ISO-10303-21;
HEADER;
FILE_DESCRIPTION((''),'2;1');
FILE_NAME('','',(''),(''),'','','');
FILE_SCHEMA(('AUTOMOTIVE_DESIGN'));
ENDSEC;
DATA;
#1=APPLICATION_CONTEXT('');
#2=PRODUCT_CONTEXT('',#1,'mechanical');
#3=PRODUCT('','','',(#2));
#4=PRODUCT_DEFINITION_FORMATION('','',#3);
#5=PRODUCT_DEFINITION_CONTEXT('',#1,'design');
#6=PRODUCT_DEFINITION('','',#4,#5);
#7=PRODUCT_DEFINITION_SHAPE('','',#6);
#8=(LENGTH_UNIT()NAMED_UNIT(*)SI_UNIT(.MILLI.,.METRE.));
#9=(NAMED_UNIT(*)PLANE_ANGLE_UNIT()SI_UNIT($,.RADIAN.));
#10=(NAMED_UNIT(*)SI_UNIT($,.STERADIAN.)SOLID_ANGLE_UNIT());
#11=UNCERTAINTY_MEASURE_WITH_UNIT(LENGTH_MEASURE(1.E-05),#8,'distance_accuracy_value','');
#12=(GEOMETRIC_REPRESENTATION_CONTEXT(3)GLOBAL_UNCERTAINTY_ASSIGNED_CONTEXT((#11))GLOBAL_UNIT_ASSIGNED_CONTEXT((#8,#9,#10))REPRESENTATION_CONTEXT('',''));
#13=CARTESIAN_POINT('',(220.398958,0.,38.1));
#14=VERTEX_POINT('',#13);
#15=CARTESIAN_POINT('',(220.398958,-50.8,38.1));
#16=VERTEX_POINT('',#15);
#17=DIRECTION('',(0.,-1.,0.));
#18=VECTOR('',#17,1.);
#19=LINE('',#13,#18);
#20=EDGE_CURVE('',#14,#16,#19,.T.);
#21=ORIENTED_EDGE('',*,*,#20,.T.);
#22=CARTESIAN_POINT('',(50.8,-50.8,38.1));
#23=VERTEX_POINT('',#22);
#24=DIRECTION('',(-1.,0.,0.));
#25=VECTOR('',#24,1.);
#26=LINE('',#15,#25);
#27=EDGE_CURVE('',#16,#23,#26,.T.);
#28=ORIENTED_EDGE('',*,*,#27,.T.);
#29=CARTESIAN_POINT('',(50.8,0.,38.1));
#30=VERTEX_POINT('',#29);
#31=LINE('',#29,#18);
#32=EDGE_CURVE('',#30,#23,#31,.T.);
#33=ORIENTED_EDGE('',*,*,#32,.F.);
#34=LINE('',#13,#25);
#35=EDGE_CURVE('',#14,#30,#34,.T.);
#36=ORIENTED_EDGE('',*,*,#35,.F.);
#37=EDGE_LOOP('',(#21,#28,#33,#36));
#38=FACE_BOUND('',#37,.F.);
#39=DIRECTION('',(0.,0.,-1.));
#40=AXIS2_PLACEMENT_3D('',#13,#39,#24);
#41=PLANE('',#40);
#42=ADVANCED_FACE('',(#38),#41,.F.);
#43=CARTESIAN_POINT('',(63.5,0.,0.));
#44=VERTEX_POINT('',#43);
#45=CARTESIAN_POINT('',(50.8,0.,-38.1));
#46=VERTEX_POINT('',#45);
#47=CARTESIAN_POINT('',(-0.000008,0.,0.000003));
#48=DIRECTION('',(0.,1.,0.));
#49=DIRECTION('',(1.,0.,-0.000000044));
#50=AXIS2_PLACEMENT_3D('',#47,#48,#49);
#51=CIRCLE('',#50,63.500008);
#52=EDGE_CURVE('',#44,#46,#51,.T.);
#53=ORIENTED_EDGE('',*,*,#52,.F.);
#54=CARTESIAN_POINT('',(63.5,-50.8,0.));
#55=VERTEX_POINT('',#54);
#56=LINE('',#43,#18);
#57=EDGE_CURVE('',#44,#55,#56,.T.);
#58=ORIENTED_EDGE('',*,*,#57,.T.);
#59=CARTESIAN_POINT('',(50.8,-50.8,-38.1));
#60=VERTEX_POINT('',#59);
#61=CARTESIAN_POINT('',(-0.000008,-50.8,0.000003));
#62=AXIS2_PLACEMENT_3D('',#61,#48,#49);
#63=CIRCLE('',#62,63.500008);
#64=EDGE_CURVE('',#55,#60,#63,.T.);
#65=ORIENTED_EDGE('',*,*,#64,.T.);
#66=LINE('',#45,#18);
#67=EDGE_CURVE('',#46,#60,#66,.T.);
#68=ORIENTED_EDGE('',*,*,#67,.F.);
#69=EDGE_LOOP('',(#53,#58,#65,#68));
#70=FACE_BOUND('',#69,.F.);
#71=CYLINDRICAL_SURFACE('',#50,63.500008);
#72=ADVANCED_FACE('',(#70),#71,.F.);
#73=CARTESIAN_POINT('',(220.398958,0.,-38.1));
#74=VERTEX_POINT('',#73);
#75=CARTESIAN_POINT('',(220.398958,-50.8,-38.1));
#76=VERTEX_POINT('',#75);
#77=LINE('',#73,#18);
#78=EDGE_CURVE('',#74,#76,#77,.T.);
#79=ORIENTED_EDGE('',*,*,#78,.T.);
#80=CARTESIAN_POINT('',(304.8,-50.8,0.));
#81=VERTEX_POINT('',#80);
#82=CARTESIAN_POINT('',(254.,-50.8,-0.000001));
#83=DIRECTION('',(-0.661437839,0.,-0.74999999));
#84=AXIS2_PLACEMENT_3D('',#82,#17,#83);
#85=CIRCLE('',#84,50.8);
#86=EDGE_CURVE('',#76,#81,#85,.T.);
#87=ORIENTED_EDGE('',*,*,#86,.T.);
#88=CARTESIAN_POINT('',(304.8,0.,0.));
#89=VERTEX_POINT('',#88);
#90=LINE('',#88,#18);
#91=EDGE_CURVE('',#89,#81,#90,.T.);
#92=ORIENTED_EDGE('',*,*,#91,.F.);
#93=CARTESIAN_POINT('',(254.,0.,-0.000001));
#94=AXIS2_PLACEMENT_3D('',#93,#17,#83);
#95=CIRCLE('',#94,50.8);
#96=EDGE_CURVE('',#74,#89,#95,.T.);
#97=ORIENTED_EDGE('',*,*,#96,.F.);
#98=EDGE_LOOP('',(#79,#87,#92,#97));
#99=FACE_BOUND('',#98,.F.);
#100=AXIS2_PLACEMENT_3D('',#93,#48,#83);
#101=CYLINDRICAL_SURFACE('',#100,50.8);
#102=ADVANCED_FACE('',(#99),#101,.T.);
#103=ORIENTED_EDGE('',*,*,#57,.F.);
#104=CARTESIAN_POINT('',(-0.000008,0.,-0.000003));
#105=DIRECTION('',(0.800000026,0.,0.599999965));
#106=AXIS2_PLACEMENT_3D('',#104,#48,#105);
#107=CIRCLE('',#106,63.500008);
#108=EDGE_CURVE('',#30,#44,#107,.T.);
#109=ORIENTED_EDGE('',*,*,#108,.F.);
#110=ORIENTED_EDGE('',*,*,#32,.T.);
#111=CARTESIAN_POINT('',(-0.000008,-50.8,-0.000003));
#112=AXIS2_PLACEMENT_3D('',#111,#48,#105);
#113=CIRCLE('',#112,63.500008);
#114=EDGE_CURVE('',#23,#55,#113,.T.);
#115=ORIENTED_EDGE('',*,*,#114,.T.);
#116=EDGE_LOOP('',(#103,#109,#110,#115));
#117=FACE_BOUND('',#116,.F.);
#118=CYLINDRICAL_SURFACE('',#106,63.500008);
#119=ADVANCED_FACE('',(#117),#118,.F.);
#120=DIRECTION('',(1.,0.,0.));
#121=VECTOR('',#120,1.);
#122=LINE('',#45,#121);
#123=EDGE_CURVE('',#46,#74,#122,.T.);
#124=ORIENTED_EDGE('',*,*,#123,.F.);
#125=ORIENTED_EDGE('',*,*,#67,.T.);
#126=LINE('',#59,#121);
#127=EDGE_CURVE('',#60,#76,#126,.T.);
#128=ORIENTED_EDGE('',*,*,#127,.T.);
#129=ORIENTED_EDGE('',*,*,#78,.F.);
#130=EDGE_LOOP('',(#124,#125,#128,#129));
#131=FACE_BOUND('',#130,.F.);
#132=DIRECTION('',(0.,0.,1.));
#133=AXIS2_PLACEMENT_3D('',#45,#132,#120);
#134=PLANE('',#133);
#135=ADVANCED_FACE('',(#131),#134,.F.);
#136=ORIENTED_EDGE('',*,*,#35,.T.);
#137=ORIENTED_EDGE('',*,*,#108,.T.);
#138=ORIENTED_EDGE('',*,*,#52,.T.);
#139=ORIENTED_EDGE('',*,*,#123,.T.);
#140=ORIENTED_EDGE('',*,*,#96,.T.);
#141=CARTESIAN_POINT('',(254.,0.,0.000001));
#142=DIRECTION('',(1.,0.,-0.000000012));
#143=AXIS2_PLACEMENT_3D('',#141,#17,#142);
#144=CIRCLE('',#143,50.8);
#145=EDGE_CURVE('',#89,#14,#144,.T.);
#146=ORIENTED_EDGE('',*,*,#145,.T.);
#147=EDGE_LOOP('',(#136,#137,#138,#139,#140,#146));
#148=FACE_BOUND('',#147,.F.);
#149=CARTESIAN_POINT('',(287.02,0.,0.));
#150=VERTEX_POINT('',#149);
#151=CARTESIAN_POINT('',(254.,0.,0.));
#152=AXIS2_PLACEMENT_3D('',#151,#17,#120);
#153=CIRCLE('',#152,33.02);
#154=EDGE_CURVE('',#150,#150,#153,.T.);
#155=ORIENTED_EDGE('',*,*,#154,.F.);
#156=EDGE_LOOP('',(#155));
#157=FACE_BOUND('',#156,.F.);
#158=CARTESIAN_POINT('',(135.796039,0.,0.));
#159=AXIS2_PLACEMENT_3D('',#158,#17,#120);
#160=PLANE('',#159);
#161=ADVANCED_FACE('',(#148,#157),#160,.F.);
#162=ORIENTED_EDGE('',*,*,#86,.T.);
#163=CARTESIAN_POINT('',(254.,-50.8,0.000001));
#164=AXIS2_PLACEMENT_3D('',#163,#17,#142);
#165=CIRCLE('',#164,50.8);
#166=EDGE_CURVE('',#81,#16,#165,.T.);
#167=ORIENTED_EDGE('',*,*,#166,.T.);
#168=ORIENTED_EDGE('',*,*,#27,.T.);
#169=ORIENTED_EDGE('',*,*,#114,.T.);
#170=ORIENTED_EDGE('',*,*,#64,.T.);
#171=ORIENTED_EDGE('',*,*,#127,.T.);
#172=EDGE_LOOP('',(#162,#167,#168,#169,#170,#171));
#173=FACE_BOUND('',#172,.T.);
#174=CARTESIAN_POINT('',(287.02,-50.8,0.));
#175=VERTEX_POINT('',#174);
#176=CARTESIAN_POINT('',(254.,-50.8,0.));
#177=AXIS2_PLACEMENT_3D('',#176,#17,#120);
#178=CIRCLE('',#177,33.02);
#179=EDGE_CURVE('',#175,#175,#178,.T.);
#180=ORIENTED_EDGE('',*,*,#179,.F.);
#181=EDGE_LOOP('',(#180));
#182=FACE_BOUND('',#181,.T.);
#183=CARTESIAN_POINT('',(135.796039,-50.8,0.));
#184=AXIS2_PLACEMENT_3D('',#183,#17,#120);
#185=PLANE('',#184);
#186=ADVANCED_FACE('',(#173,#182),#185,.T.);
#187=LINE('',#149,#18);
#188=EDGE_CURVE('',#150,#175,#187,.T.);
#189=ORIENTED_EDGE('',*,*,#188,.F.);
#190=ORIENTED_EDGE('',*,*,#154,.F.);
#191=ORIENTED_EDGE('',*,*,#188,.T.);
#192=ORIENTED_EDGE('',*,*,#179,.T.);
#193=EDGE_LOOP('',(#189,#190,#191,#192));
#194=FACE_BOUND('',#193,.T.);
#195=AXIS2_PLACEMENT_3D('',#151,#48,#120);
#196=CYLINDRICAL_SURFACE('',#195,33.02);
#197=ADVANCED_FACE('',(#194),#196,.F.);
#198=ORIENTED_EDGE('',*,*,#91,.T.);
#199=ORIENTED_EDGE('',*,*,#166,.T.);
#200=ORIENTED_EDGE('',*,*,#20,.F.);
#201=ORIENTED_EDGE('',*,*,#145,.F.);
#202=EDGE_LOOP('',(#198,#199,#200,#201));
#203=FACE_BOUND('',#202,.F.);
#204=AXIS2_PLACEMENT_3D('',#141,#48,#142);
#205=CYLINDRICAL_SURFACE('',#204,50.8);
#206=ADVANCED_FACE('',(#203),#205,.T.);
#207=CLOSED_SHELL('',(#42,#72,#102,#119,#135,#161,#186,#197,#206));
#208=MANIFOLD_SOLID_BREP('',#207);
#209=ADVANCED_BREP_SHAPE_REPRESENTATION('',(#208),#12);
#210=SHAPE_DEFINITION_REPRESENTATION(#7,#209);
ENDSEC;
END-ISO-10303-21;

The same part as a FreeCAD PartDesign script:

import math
import FreeCAD as App
import Part
import Sketcher

V = App.Vector
Q = App.Units.Quantity

doc = App.newDocument("Part")
params = doc.addObject("Spreadsheet::Sheet", "Params")
for row, (alias, value) in enumerate([
    ("sketch1_radius", "2 in"),
    ("sketch1_diameter", "2.6 in"),
    ("pad1_length", "2 in"),
], start=1):
    params.set(f"A{row}", alias)
    params.set(f"B{row}", "=" + value)
    params.setAlias(f"B{row}", alias)

body = doc.addObject("PartDesign::Body", "Body")

sketch1 = body.newObject("Sketcher::SketchObject", "Sketch")
sketch1.AttachmentSupport = (doc.getObject("XZ_Plane"), [""])
sketch1.MapMode = "FlatFace"
sketch1.addGeometry(Part.ArcOfCircle(Part.Circle(V(0, 0, 0), V(0, 0, 1), 64), math.radians(0), math.radians(37)), False)
sketch1.addGeometry(Part.ArcOfCircle(Part.Circle(V(0, 0, 0), V(0, 0, 1), 64), math.radians(-37), math.radians(0)), False)
sketch1.addGeometry(Part.LineSegment(V(51, -38, 0), V(220, -38, 0)), False)
sketch1.addGeometry(Part.ArcOfCircle(Part.Circle(V(254, 0, 0), V(0, 0, 1), 51), math.radians(-131), math.radians(0)), False)
sketch1.addGeometry(Part.ArcOfCircle(Part.Circle(V(254, 0, 0), V(0, 0, 1), 51), math.radians(0), math.radians(131)), False)
sketch1.addGeometry(Part.LineSegment(V(220, 38, 0), V(51, 38, 0)), False)
sketch1.addGeometry(Part.Circle(V(254, 0, 0), V(0, 0, 1), 33), False)
sketch1.addConstraint(Sketcher.Constraint("Tangent", 0, 1, 1, 2))
sketch1.addConstraint(Sketcher.Constraint("Coincident", 1, 1, 2, 1))
sketch1.addConstraint(Sketcher.Constraint("Coincident", 2, 2, 3, 1))
sketch1.addConstraint(Sketcher.Constraint("Tangent", 3, 2, 4, 1))
sketch1.addConstraint(Sketcher.Constraint("Coincident", 4, 2, 5, 1))
sketch1.addConstraint(Sketcher.Constraint("Coincident", 5, 2, 0, 2))
sketch1.addConstraint(Sketcher.Constraint("Horizontal", 2))
sketch1.addConstraint(Sketcher.Constraint("Horizontal", 5))
sketch1.addConstraint(Sketcher.Constraint("Coincident", 0, 3, -1, 1))
sketch1.addConstraint(Sketcher.Constraint("Coincident", 6, 3, 3, 3))
sketch1.addConstraint(Sketcher.Constraint("Equal", 0, 1))
sketch1.addConstraint(Sketcher.Constraint("Equal", 3, 4))
sketch1.addConstraint(Sketcher.Constraint("Symmetric", 2, 2, 4, 2, -1))
sketch1.addConstraint(Sketcher.Constraint("PointOnObject", 0, 1, -1))
sketch1.addConstraint(Sketcher.Constraint("PointOnObject", 3, 2, -1))
sketch1.addConstraint(Sketcher.Constraint("Radius", 3, Q("2 in")))
sketch1.addConstraint(Sketcher.Constraint("Diameter", 6, Q("2.6 in")))
sketch1.addConstraint(Sketcher.Constraint("DistanceX", -1, 1, 3, 3, Q("10 in")))
sketch1.addConstraint(Sketcher.Constraint("DistanceX", -1, 1, 1, 1, Q("2 in")))
sketch1.addConstraint(Sketcher.Constraint("DistanceY", 2, 2, 4, 2, Q("3 in")))
sketch1.setExpression("Constraints[15]", "Params.sketch1_radius")
sketch1.setExpression("Constraints[16]", "Params.sketch1_diameter")
pad1 = body.newObject("PartDesign::Pad", "Pad")
pad1.Profile = sketch1
pad1.setExpression("Length", "Params.pad1_length")

doc.recompute()
